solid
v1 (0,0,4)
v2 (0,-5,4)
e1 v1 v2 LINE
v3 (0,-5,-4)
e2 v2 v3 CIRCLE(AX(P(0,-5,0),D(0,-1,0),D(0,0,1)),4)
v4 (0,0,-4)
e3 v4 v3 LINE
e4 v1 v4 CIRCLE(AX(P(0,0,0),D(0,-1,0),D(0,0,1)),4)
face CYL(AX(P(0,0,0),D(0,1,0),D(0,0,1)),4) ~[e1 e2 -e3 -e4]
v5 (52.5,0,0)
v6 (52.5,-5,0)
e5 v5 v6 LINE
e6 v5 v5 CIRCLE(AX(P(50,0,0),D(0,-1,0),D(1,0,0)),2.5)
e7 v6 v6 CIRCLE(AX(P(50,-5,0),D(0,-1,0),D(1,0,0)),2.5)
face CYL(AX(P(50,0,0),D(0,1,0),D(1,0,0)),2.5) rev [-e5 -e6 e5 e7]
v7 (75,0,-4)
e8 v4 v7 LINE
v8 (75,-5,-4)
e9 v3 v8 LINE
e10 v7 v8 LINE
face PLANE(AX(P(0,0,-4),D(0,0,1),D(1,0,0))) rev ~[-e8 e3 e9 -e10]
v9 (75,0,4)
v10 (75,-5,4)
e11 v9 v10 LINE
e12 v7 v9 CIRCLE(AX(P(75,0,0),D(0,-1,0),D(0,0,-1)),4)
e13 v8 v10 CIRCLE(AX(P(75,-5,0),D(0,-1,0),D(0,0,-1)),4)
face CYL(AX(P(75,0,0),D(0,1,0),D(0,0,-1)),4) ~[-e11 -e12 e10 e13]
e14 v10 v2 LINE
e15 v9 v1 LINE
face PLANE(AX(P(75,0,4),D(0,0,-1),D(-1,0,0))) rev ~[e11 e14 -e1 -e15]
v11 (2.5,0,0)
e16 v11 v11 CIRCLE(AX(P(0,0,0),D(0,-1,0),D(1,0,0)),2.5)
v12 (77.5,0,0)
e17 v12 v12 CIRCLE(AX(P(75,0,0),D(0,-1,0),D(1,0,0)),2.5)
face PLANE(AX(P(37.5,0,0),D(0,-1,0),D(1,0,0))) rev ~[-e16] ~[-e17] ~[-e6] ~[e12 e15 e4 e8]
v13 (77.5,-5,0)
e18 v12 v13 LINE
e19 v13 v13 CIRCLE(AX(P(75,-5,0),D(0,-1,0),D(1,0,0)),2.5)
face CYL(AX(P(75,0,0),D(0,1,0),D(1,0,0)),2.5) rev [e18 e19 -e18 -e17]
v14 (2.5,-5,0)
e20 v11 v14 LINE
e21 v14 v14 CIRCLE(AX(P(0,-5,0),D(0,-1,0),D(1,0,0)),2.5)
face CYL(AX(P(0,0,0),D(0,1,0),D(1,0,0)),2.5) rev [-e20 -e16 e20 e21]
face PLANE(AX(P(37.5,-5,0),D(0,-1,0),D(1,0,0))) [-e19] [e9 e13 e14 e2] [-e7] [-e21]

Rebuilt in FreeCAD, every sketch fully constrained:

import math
import FreeCAD as App
import Part
import Sketcher
from FreeCAD import Vector

doc = App.newDocument("Part")
params = doc.addObject("Spreadsheet::Sheet", "Params")
for row, (alias, value) in enumerate([
    ("sketch1_diameter", "5 mm"),
    ("sketch1_radius", "4 mm"),
    ("sketch1_width", "75 mm"),
    ("pad1_length", "5 mm"),
], start=1):
    params.set(f"A{row}", alias)
    params.set(f"B{row}", "=" + value)
    params.setAlias(f"B{row}", alias)

body = doc.addObject("PartDesign::Body", "Body")

# Sketch on XZ plane
sketch1 = body.newObject("Sketcher::SketchObject", "Sketch")
sketch1.AttachmentSupport = (doc.getObject("XZ_Plane"), [""])
sketch1.MapMode = "FlatFace"
sketch1.addGeometry([
    Part.LineSegment(Vector(75, 4, 0), Vector(0, 4, 0)),  # 0
    Part.ArcOfCircle(Part.Circle(Vector(0, 0, 0), Vector(0, 0, 1), 4), math.radians(90), math.radians(270)),  # 1
    Part.LineSegment(Vector(0, -4, 0), Vector(75, -4, 0)),  # 2
    Part.ArcOfCircle(Part.Circle(Vector(75, 0, 0), Vector(0, 0, 1), 4), math.radians(-90), math.radians(90)),  # 3
    Part.Circle(Vector(0, 0, 0), Vector(0, 0, 1), 2.5),  # 4
    Part.Circle(Vector(50, 0, 0), Vector(0, 0, 1), 2.5),  # 5
    Part.Circle(Vector(75, 0, 0), Vector(0, 0, 1), 2.5),  # 6
], False)
sketch1.addConstraint([
    Sketcher.Constraint("Tangent", 0, 2, 1, 1),
    Sketcher.Constraint("Tangent", 1, 2, 2, 1),
    Sketcher.Constraint("Tangent", 2, 2, 3, 1),
    Sketcher.Constraint("Tangent", 3, 2, 0, 1),
    Sketcher.Constraint("Horizontal", 0),
    Sketcher.Constraint("Horizontal", 2),
    Sketcher.Constraint("Coincident", 1, 3, -1, 1),
    Sketcher.Constraint("Coincident", 4, 3, -1, 1),
    Sketcher.Constraint("Coincident", 6, 3, 3, 3),
    Sketcher.Constraint("Equal", 4, 5),
    Sketcher.Constraint("Equal", 5, 6),
    Sketcher.Constraint("PointOnObject", 5, 3, -1),
    Sketcher.Constraint("Diameter", 4, 5.0),
    Sketcher.Constraint("Radius", 1, 4.0),
    Sketcher.Constraint("DistanceX", 0, 2, 0, 1, 75.0),
    Sketcher.Constraint("DistanceX", -1, 1, 5, 3, 50.0),
])
sketch1.setExpression("Constraints[12]", "Params.sketch1_diameter")
sketch1.setExpression("Constraints[13]", "Params.sketch1_radius")
sketch1.setExpression("Constraints[14]", "Params.sketch1_width")
pad1 = body.newObject("PartDesign::Pad", "Pad")
pad1.Profile = sketch1
pad1.setExpression("Length", "Params.pad1_length")

doc.recompute()
